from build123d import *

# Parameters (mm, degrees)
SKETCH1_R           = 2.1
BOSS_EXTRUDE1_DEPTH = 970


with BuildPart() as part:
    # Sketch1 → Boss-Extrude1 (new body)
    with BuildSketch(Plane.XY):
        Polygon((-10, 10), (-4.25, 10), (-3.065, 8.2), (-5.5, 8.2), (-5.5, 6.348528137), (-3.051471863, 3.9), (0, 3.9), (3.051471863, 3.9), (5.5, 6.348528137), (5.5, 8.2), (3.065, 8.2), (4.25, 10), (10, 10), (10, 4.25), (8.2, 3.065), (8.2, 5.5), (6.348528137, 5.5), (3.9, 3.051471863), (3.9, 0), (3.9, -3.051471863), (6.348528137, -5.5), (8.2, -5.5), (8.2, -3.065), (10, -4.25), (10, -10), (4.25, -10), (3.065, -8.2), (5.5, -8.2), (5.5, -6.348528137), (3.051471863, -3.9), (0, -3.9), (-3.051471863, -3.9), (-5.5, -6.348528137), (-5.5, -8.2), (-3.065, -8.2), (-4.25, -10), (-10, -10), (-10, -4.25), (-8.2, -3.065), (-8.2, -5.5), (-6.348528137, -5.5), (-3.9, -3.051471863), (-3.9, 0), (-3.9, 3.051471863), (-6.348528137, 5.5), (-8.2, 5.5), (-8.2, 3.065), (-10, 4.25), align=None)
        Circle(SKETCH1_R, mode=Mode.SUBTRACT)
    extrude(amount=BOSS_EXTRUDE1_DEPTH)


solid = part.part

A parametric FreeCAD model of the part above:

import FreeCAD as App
import Part
import Sketcher
Q = App.Units.Quantity

doc = App.newDocument("Part")
body = doc.addObject("PartDesign::Body", "Body")

sketch1 = doc.addObject("Sketcher::SketchObject", "Sketch")
body.addObject(sketch1)
sketch1.AttachmentSupport = (doc.XY_Plane, [""])
sketch1.MapMode = "FlatFace"
sketch1.addGeometry(Part.LineSegment(App.Vector(-4.2, 10, 0), App.Vector(-10, 10, 0)), False)
sketch1.addGeometry(Part.LineSegment(App.Vector(-10, 10, 0), App.Vector(-10, 4.2, 0)), False)
sketch1.addGeometry(Part.LineSegment(App.Vector(-10, 4.2, 0), App.Vector(-8.2, 3.1, 0)), False)
sketch1.addGeometry(Part.LineSegment(App.Vector(-8.2, 3.1, 0), App.Vector(-8.2, 5.5, 0)), False)
sketch1.addGeometry(Part.LineSegment(App.Vector(-8.2, 5.5, 0), App.Vector(-6.3, 5.5, 0)), False)
sketch1.addGeometry(Part.LineSegment(App.Vector(-6.3, 5.5, 0), App.Vector(-3.9, 3.1, 0)), False)
sketch1.addGeometry(Part.LineSegment(App.Vector(-3.9, 3.1, 0), App.Vector(-3.9, -3.1, 0)), False)
sketch1.addGeometry(Part.LineSegment(App.Vector(-3.9, -3.1, 0), App.Vector(-6.3, -5.5, 0)), False)
sketch1.addGeometry(Part.LineSegment(App.Vector(-6.3, -5.5, 0), App.Vector(-8.2, -5.5, 0)), False)
sketch1.addGeometry(Part.LineSegment(App.Vector(-8.2, -5.5, 0), App.Vector(-8.2, -3.1, 0)), False)
sketch1.addGeometry(Part.LineSegment(App.Vector(-8.2, -3.1, 0), App.Vector(-10, -4.2, 0)), False)
sketch1.addGeometry(Part.LineSegment(App.Vector(-10, -4.2, 0), App.Vector(-10, -10, 0)), False)
sketch1.addGeometry(Part.LineSegment(App.Vector(-10, -10, 0), App.Vector(-4.2, -10, 0)), False)
sketch1.addGeometry(Part.LineSegment(App.Vector(-4.2, -10, 0), App.Vector(-3.1, -8.2, 0)), False)
sketch1.addGeometry(Part.LineSegment(App.Vector(-3.1, -8.2, 0), App.Vector(-5.5, -8.2, 0)), False)
sketch1.addGeometry(Part.LineSegment(App.Vector(-5.5, -8.2, 0), App.Vector(-5.5, -6.3, 0)), False)
sketch1.addGeometry(Part.LineSegment(App.Vector(-5.5, -6.3, 0), App.Vector(-3.1, -3.9, 0)), False)
sketch1.addGeometry(Part.LineSegment(App.Vector(-3.1, -3.9, 0), App.Vector(3.1, -3.9, 0)), False)
sketch1.addGeometry(Part.LineSegment(App.Vector(3.1, -3.9, 0), App.Vector(5.5, -6.3, 0)), False)
sketch1.addGeometry(Part.LineSegment(App.Vector(5.5, -6.3, 0), App.Vector(5.5, -8.2, 0)), False)
sketch1.addGeometry(Part.LineSegment(App.Vector(5.5, -8.2, 0), App.Vector(3.1, -8.2, 0)), False)
sketch1.addGeometry(Part.LineSegment(App.Vector(3.1, -8.2, 0), App.Vector(4.2, -10, 0)), False)
sketch1.addGeometry(Part.LineSegment(App.Vector(4.2, -10, 0), App.Vector(10, -10, 0)), False)
sketch1.addGeometry(Part.LineSegment(App.Vector(10, -10, 0), App.Vector(10, -4.2, 0)), False)
sketch1.addGeometry(Part.LineSegment(App.Vector(10, -4.2, 0), App.Vector(8.2, -3.1, 0)), False)
sketch1.addGeometry(Part.LineSegment(App.Vector(8.2, -3.1, 0), App.Vector(8.2, -5.5, 0)), False)
sketch1.addGeometry(Part.LineSegment(App.Vector(8.2, -5.5, 0), App.Vector(6.3, -5.5, 0)), False)
sketch1.addGeometry(Part.LineSegment(App.Vector(6.3, -5.5, 0), App.Vector(3.9, -3.1, 0)), False)
sketch1.addGeometry(Part.LineSegment(App.Vector(3.9, -3.1, 0), App.Vector(3.9, 3.1, 0)), False)
sketch1.addGeometry(Part.LineSegment(App.Vector(3.9, 3.1, 0), App.Vector(6.3, 5.5, 0)), False)
sketch1.addGeometry(Part.LineSegment(App.Vector(6.3, 5.5, 0), App.Vector(8.2, 5.5, 0)), False)
sketch1.addGeometry(Part.LineSegment(App.Vector(8.2, 5.5, 0), App.Vector(8.2, 3.1, 0)), False)
sketch1.addGeometry(Part.LineSegment(App.Vector(8.2, 3.1, 0), App.Vector(10, 4.2, 0)), False)
sketch1.addGeometry(Part.LineSegment(App.Vector(10, 4.2, 0), App.Vector(10, 10, 0)), False)
sketch1.addGeometry(Part.LineSegment(App.Vector(10, 10, 0), App.Vector(4.2, 10, 0)), False)
sketch1.addGeometry(Part.LineSegment(App.Vector(4.2, 10, 0), App.Vector(3.1, 8.2, 0)), False)
sketch1.addGeometry(Part.LineSegment(App.Vector(3.1, 8.2, 0), App.Vector(5.5, 8.2, 0)), False)
sketch1.addGeometry(Part.LineSegment(App.Vector(5.5, 8.2, 0), App.Vector(5.5, 6.3, 0)), False)
sketch1.addGeometry(Part.LineSegment(App.Vector(5.5, 6.3, 0), App.Vector(3.1, 3.9, 0)), False)
sketch1.addGeometry(Part.LineSegment(App.Vector(3.1, 3.9, 0), App.Vector(-3.1, 3.9, 0)), False)
sketch1.addGeometry(Part.LineSegment(App.Vector(-3.1, 3.9, 0), App.Vector(-5.5, 6.3, 0)), False)
sketch1.addGeometry(Part.LineSegment(App.Vector(-5.5, 6.3, 0), App.Vector(-5.5, 8.2, 0)), False)
sketch1.addGeometry(Part.LineSegment(App.Vector(-5.5, 8.2, 0), App.Vector(-3.1, 8.2, 0)), False)
sketch1.addGeometry(Part.LineSegment(App.Vector(-3.1, 8.2, 0), App.Vector(-4.2, 10, 0)), False)
sketch1.addGeometry(Part.Circle(App.Vector(0, 0, 0), App.Vector(0, 0, 1), 2.1), False)
sketch1.addConstraint(Sketcher.Constraint("Coincident", 0, 2, 1, 1))
sketch1.addConstraint(Sketcher.Constraint("Coincident", 1, 2, 2, 1))
sketch1.addConstraint(Sketcher.Constraint("Coincident", 2, 2, 3, 1))
sketch1.addConstraint(Sketcher.Constraint("Coincident", 3, 2, 4, 1))
sketch1.addConstraint(Sketcher.Constraint("Coincident", 4, 2, 5, 1))
sketch1.addConstraint(Sketcher.Constraint("Coincident", 5, 2, 6, 1))
sketch1.addConstraint(Sketcher.Constraint("Coincident", 6, 2, 7, 1))
sketch1.addConstraint(Sketcher.Constraint("Coincident", 7, 2, 8, 1))
sketch1.addConstraint(Sketcher.Constraint("Coincident", 8, 2, 9, 1))
sketch1.addConstraint(Sketcher.Constraint("Coincident", 9, 2, 10, 1))
sketch1.addConstraint(Sketcher.Constraint("Coincident", 10, 2, 11, 1))
sketch1.addConstraint(Sketcher.Constraint("Coincident", 11, 2, 12, 1))
sketch1.addConstraint(Sketcher.Constraint("Coincident", 12, 2, 13, 1))
sketch1.addConstraint(Sketcher.Constraint("Coincident", 13, 2, 14, 1))
sketch1.addConstraint(Sketcher.Constraint("Coincident", 14, 2, 15, 1))
sketch1.addConstraint(Sketcher.Constraint("Coincident", 15, 2, 16, 1))
sketch1.addConstraint(Sketcher.Constraint("Coincident", 16, 2, 17, 1))
sketch1.addConstraint(Sketcher.Constraint("Coincident", 17, 2, 18, 1))
sketch1.addConstraint(Sketcher.Constraint("Coincident", 18, 2, 19, 1))
sketch1.addConstraint(Sketcher.Constraint("Coincident", 19, 2, 20, 1))
sketch1.addConstraint(Sketcher.Constraint("Coincident", 20, 2, 21, 1))
sketch1.addConstraint(Sketcher.Constraint("Coincident", 21, 2, 22, 1))
sketch1.addConstraint(Sketcher.Constraint("Coincident", 22, 2, 23, 1))
sketch1.addConstraint(Sketcher.Constraint("Coincident", 23, 2, 24, 1))
sketch1.addConstraint(Sketcher.Constraint("Coincident", 24, 2, 25, 1))
sketch1.addConstraint(Sketcher.Constraint("Coincident", 25, 2, 26, 1))
sketch1.addConstraint(Sketcher.Constraint("Coincident", 26, 2, 27, 1))
sketch1.addConstraint(Sketcher.Constraint("Coincident", 27, 2, 28, 1))
sketch1.addConstraint(Sketcher.Constraint("Coincident", 28, 2, 29, 1))
sketch1.addConstraint(Sketcher.Constraint("Coincident", 29, 2, 30, 1))
sketch1.addConstraint(Sketcher.Constraint("Coincident", 30, 2, 31, 1))
sketch1.addConstraint(Sketcher.Constraint("Coincident", 31, 2, 32, 1))
sketch1.addConstraint(Sketcher.Constraint("Coincident", 32, 2, 33, 1))
sketch1.addConstraint(Sketcher.Constraint("Coincident", 33, 2, 34, 1))
sketch1.addConstraint(Sketcher.Constraint("Coincident", 34, 2, 35, 1))
sketch1.addConstraint(Sketcher.Constraint("Coincident", 35, 2, 36, 1))
sketch1.addConstraint(Sketcher.Constraint("Coincident", 36, 2, 37, 1))
sketch1.addConstraint(Sketcher.Constraint("Coincident", 37, 2, 38, 1))
sketch1.addConstraint(Sketcher.Constraint("Coincident", 38, 2, 39, 1))
sketch1.addConstraint(Sketcher.Constraint("Coincident", 39, 2, 40, 1))
sketch1.addConstraint(Sketcher.Constraint("Coincident", 40, 2, 41, 1))
sketch1.addConstraint(Sketcher.Constraint("Coincident", 41, 2, 42, 1))
sketch1.addConstraint(Sketcher.Constraint("Coincident", 42, 2, 43, 1))
sketch1.addConstraint(Sketcher.Constraint("Coincident", 43, 2, 0, 1))
sketch1.addConstraint(Sketcher.Constraint("Horizontal", 0))
sketch1.addConstraint(Sketcher.Constraint("Vertical", 1))
sketch1.addConstraint(Sketcher.Constraint("Vertical", 3))
sketch1.addConstraint(Sketcher.Constraint("Horizontal", 4))
sketch1.addConstraint(Sketcher.Constraint("Vertical", 6))
sketch1.addConstraint(Sketcher.Constraint("Horizontal", 8))
sketch1.addConstraint(Sketcher.Constraint("Vertical", 9))
sketch1.addConstraint(Sketcher.Constraint("Vertical", 11))
sketch1.addConstraint(Sketcher.Constraint("Horizontal", 12))
sketch1.addConstraint(Sketcher.Constraint("Horizontal", 14))
sketch1.addConstraint(Sketcher.Constraint("Vertical", 15))
sketch1.addConstraint(Sketcher.Constraint("Horizontal", 17))
sketch1.addConstraint(Sketcher.Constraint("Vertical", 19))
sketch1.addConstraint(Sketcher.Constraint("Horizontal", 20))
sketch1.addConstraint(Sketcher.Constraint("Horizontal", 22))
sketch1.addConstraint(Sketcher.Constraint("Vertical", 23))
sketch1.addConstraint(Sketcher.Constraint("Vertical", 25))
sketch1.addConstraint(Sketcher.Constraint("Horizontal", 26))
sketch1.addConstraint(Sketcher.Constraint("Vertical", 28))
sketch1.addConstraint(Sketcher.Constraint("Horizontal", 30))
sketch1.addConstraint(Sketcher.Constraint("Vertical", 31))
sketch1.addConstraint(Sketcher.Constraint("Vertical", 33))
sketch1.addConstraint(Sketcher.Constraint("Horizontal", 34))
sketch1.addConstraint(Sketcher.Constraint("Horizontal", 36))
sketch1.addConstraint(Sketcher.Constraint("Vertical", 37))
sketch1.addConstraint(Sketcher.Constraint("Horizontal", 39))
sketch1.addConstraint(Sketcher.Constraint("Vertical", 41))
sketch1.addConstraint(Sketcher.Constraint("Horizontal", 42))
sketch1.addConstraint(Sketcher.Constraint("Coincident", 44, 3, -1, 1))
sketch1.addConstraint(Sketcher.Constraint("Symmetric", 0, 2, 22, 2, -1, 1))
sketch1.addConstraint(Sketcher.Constraint("Symmetric", 2, 2, 24, 2, -1, 1))
sketch1.addConstraint(Sketcher.Constraint("Symmetric", 4, 2, 26, 2, -1, 1))
sketch1.addConstraint(Sketcher.Constraint("Symmetric", 5, 2, 27, 2, -1, 1))
sketch1.addConstraint(Sketcher.Constraint("Symmetric", 7, 2, 29, 2, -1, 1))
sketch1.addConstraint(Sketcher.Constraint("Symmetric", 9, 2, 31, 2, -1, 1))
sketch1.addConstraint(Sketcher.Constraint("Symmetric", 10, 2, 32, 2, -1, 1))
sketch1.addConstraint(Sketcher.Constraint("Symmetric", 12, 2, 34, 2, -1, 1))
sketch1.addConstraint(Sketcher.Constraint("Symmetric", 13, 2, 35, 2, -1, 1))
sketch1.addConstraint(Sketcher.Constraint("Symmetric", 15, 2, 37, 2, -1, 1))
sketch1.addConstraint(Sketcher.Constraint("Symmetric", 16, 2, 38, 2, -1, 1))
sketch1.addConstraint(Sketcher.Constraint("Symmetric", 18, 2, 40, 2, -1, 1))
sketch1.addConstraint(Sketcher.Constraint("Symmetric", 20, 2, 42, 2, -1, 1))
sketch1.addConstraint(Sketcher.Constraint("Symmetric", 15, 2, 18, 2, -2))
sketch1.addConstraint(Sketcher.Constraint("Symmetric", 13, 2, 20, 2, -2))
sketch1.addConstraint(Sketcher.Constraint("Symmetric", 12, 2, 21, 2, -2))
sketch1.addConstraint(Sketcher.Constraint("Symmetric", 10, 2, 23, 2, -2))
sketch1.addConstraint(Sketcher.Constraint("Symmetric", 9, 2, 24, 2, -2))
sketch1.addConstraint(Sketcher.Constraint("Symmetric", 7, 2, 26, 2, -2))
sketch1.addConstraint(Sketcher.Constraint("Perpendicular", 5, 7))
sketch1.addConstraint(Sketcher.Constraint("Perpendicular", 2, 13))
sketch1.addConstraint(Sketcher.Constraint("Parallel", 7, 16))
sketch1.addConstraint(Sketcher.Constraint("Perpendicular", 16, 18))
sketch1.addConstraint(Sketcher.Constraint("Perpendicular", 10, 21))
sketch1.addConstraint(Sketcher.Constraint("Perpendicular", 27, 29))
sketch1.addConstraint(Sketcher.Constraint("Perpendicular", 38, 40))
sketch1.addConstraint(Sketcher.Constraint("Perpendicular", 32, 43))
sketch1.addConstraint(Sketcher.Constraint("Horizontal", 6, 2, 27, 2))
sketch1.addConstraint(Sketcher.Constraint("Equal", 34, 1))
sketch1.addConstraint(Sketcher.Constraint("Equal", 42, 3))
sketch1.addConstraint(Sketcher.Constraint("Equal", 39, 6))
sketch1.addConstraint(Sketcher.Constraint("Equal", 30, 15))
sketch1.addConstraint(Sketcher.Constraint("Equal", 10, 13))
sketch1.addConstraint(Sketcher.Constraint("Equal", 7, 16))
sketch1.addConstraint(Sketcher.Constraint("Diameter", 44, Q("4.2 mm")))
sketch1.addConstraint(Sketcher.Constraint("DistanceX", 0, 2, -1, 1, Q("10 mm")))
sketch1.addConstraint(Sketcher.Constraint("DistanceX", 0, 2, 0, 1, Q("5.75 mm")))
sketch1.addConstraint(Sketcher.Constraint("DistanceX", 2, 2, -1, 1, Q("8.2 mm")))
sketch1.addConstraint(Sketcher.Constraint("DistanceY", -1, 1, 3, 2, Q("5.5 mm")))
sketch1.addConstraint(Sketcher.Constraint("DistanceX", 5, 2, -1, 1, Q("3.9 mm")))
sketch1.addConstraint(Sketcher.Constraint("DistanceX", 14, 2, 14, 1, Q("2.435 mm")))
sketch1.addConstraint(Sketcher.Constraint("DistanceX", 4, 1, 4, 2, Q("1.851472 mm")))
pad1 = doc.addObject("PartDesign::Pad", "Pad")
body.addObject(pad1)
pad1.Profile = sketch1
pad1.Length = 970

doc.recompute()
